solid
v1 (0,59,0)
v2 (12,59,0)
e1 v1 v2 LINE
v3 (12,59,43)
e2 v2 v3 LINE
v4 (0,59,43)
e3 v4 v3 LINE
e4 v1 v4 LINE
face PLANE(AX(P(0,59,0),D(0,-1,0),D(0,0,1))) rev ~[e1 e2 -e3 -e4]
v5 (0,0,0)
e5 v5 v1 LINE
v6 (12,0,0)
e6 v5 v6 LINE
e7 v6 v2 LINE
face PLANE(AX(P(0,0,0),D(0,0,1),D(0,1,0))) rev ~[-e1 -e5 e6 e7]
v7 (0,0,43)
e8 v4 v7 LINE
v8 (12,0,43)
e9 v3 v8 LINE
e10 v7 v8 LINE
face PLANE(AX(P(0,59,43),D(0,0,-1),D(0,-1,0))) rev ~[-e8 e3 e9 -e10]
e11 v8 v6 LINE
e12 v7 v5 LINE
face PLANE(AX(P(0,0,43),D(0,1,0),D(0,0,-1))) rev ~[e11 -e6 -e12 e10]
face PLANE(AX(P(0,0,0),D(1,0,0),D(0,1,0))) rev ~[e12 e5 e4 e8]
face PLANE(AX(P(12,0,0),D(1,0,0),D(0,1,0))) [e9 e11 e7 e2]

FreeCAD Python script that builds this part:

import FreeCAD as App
import Part
import Sketcher

V = App.Vector
Q = App.Units.Quantity

doc = App.newDocument("Part")
body = doc.addObject("PartDesign::Body", "Body")

# Sketch on YZ plane
sketch1 = body.newObject("Sketcher::SketchObject", "Sketch")
sketch1.AttachmentSupport = (doc.getObject("YZ_Plane"), [""])
sketch1.MapMode = "FlatFace"
sketch1.addGeometry([
    Part.LineSegment(V(0, 43, 0), V(0, 0, 0)),
    Part.LineSegment(V(0, 0, 0), V(59, 0, 0)),
    Part.LineSegment(V(59, 0, 0), V(59, 43, 0)),
    Part.LineSegment(V(59, 43, 0), V(0, 43, 0)),
], False)
sketch1.addConstraint([
    Sketcher.Constraint("Coincident", 0, 2, 1, 1),
    Sketcher.Constraint("Coincident", 1, 2, 2, 1),
    Sketcher.Constraint("Coincident", 2, 2, 3, 1),
    Sketcher.Constraint("Coincident", 3, 2, 0, 1),
    Sketcher.Constraint("Vertical", 0),
    Sketcher.Constraint("Horizontal", 1),
    Sketcher.Constraint("Vertical", 2),
    Sketcher.Constraint("Horizontal", 3),
    Sketcher.Constraint("Coincident", 0, 2, -1, 1),
    Sketcher.Constraint("DistanceX", 1, 1, 1, 2, Q("59 mm")),
    Sketcher.Constraint("DistanceY", 0, 2, 0, 1, Q("43 mm")),
])
pad1 = body.newObject("PartDesign::Pad", "Pad")
pad1.Profile = sketch1
pad1.Length = 12

doc.recompute()
